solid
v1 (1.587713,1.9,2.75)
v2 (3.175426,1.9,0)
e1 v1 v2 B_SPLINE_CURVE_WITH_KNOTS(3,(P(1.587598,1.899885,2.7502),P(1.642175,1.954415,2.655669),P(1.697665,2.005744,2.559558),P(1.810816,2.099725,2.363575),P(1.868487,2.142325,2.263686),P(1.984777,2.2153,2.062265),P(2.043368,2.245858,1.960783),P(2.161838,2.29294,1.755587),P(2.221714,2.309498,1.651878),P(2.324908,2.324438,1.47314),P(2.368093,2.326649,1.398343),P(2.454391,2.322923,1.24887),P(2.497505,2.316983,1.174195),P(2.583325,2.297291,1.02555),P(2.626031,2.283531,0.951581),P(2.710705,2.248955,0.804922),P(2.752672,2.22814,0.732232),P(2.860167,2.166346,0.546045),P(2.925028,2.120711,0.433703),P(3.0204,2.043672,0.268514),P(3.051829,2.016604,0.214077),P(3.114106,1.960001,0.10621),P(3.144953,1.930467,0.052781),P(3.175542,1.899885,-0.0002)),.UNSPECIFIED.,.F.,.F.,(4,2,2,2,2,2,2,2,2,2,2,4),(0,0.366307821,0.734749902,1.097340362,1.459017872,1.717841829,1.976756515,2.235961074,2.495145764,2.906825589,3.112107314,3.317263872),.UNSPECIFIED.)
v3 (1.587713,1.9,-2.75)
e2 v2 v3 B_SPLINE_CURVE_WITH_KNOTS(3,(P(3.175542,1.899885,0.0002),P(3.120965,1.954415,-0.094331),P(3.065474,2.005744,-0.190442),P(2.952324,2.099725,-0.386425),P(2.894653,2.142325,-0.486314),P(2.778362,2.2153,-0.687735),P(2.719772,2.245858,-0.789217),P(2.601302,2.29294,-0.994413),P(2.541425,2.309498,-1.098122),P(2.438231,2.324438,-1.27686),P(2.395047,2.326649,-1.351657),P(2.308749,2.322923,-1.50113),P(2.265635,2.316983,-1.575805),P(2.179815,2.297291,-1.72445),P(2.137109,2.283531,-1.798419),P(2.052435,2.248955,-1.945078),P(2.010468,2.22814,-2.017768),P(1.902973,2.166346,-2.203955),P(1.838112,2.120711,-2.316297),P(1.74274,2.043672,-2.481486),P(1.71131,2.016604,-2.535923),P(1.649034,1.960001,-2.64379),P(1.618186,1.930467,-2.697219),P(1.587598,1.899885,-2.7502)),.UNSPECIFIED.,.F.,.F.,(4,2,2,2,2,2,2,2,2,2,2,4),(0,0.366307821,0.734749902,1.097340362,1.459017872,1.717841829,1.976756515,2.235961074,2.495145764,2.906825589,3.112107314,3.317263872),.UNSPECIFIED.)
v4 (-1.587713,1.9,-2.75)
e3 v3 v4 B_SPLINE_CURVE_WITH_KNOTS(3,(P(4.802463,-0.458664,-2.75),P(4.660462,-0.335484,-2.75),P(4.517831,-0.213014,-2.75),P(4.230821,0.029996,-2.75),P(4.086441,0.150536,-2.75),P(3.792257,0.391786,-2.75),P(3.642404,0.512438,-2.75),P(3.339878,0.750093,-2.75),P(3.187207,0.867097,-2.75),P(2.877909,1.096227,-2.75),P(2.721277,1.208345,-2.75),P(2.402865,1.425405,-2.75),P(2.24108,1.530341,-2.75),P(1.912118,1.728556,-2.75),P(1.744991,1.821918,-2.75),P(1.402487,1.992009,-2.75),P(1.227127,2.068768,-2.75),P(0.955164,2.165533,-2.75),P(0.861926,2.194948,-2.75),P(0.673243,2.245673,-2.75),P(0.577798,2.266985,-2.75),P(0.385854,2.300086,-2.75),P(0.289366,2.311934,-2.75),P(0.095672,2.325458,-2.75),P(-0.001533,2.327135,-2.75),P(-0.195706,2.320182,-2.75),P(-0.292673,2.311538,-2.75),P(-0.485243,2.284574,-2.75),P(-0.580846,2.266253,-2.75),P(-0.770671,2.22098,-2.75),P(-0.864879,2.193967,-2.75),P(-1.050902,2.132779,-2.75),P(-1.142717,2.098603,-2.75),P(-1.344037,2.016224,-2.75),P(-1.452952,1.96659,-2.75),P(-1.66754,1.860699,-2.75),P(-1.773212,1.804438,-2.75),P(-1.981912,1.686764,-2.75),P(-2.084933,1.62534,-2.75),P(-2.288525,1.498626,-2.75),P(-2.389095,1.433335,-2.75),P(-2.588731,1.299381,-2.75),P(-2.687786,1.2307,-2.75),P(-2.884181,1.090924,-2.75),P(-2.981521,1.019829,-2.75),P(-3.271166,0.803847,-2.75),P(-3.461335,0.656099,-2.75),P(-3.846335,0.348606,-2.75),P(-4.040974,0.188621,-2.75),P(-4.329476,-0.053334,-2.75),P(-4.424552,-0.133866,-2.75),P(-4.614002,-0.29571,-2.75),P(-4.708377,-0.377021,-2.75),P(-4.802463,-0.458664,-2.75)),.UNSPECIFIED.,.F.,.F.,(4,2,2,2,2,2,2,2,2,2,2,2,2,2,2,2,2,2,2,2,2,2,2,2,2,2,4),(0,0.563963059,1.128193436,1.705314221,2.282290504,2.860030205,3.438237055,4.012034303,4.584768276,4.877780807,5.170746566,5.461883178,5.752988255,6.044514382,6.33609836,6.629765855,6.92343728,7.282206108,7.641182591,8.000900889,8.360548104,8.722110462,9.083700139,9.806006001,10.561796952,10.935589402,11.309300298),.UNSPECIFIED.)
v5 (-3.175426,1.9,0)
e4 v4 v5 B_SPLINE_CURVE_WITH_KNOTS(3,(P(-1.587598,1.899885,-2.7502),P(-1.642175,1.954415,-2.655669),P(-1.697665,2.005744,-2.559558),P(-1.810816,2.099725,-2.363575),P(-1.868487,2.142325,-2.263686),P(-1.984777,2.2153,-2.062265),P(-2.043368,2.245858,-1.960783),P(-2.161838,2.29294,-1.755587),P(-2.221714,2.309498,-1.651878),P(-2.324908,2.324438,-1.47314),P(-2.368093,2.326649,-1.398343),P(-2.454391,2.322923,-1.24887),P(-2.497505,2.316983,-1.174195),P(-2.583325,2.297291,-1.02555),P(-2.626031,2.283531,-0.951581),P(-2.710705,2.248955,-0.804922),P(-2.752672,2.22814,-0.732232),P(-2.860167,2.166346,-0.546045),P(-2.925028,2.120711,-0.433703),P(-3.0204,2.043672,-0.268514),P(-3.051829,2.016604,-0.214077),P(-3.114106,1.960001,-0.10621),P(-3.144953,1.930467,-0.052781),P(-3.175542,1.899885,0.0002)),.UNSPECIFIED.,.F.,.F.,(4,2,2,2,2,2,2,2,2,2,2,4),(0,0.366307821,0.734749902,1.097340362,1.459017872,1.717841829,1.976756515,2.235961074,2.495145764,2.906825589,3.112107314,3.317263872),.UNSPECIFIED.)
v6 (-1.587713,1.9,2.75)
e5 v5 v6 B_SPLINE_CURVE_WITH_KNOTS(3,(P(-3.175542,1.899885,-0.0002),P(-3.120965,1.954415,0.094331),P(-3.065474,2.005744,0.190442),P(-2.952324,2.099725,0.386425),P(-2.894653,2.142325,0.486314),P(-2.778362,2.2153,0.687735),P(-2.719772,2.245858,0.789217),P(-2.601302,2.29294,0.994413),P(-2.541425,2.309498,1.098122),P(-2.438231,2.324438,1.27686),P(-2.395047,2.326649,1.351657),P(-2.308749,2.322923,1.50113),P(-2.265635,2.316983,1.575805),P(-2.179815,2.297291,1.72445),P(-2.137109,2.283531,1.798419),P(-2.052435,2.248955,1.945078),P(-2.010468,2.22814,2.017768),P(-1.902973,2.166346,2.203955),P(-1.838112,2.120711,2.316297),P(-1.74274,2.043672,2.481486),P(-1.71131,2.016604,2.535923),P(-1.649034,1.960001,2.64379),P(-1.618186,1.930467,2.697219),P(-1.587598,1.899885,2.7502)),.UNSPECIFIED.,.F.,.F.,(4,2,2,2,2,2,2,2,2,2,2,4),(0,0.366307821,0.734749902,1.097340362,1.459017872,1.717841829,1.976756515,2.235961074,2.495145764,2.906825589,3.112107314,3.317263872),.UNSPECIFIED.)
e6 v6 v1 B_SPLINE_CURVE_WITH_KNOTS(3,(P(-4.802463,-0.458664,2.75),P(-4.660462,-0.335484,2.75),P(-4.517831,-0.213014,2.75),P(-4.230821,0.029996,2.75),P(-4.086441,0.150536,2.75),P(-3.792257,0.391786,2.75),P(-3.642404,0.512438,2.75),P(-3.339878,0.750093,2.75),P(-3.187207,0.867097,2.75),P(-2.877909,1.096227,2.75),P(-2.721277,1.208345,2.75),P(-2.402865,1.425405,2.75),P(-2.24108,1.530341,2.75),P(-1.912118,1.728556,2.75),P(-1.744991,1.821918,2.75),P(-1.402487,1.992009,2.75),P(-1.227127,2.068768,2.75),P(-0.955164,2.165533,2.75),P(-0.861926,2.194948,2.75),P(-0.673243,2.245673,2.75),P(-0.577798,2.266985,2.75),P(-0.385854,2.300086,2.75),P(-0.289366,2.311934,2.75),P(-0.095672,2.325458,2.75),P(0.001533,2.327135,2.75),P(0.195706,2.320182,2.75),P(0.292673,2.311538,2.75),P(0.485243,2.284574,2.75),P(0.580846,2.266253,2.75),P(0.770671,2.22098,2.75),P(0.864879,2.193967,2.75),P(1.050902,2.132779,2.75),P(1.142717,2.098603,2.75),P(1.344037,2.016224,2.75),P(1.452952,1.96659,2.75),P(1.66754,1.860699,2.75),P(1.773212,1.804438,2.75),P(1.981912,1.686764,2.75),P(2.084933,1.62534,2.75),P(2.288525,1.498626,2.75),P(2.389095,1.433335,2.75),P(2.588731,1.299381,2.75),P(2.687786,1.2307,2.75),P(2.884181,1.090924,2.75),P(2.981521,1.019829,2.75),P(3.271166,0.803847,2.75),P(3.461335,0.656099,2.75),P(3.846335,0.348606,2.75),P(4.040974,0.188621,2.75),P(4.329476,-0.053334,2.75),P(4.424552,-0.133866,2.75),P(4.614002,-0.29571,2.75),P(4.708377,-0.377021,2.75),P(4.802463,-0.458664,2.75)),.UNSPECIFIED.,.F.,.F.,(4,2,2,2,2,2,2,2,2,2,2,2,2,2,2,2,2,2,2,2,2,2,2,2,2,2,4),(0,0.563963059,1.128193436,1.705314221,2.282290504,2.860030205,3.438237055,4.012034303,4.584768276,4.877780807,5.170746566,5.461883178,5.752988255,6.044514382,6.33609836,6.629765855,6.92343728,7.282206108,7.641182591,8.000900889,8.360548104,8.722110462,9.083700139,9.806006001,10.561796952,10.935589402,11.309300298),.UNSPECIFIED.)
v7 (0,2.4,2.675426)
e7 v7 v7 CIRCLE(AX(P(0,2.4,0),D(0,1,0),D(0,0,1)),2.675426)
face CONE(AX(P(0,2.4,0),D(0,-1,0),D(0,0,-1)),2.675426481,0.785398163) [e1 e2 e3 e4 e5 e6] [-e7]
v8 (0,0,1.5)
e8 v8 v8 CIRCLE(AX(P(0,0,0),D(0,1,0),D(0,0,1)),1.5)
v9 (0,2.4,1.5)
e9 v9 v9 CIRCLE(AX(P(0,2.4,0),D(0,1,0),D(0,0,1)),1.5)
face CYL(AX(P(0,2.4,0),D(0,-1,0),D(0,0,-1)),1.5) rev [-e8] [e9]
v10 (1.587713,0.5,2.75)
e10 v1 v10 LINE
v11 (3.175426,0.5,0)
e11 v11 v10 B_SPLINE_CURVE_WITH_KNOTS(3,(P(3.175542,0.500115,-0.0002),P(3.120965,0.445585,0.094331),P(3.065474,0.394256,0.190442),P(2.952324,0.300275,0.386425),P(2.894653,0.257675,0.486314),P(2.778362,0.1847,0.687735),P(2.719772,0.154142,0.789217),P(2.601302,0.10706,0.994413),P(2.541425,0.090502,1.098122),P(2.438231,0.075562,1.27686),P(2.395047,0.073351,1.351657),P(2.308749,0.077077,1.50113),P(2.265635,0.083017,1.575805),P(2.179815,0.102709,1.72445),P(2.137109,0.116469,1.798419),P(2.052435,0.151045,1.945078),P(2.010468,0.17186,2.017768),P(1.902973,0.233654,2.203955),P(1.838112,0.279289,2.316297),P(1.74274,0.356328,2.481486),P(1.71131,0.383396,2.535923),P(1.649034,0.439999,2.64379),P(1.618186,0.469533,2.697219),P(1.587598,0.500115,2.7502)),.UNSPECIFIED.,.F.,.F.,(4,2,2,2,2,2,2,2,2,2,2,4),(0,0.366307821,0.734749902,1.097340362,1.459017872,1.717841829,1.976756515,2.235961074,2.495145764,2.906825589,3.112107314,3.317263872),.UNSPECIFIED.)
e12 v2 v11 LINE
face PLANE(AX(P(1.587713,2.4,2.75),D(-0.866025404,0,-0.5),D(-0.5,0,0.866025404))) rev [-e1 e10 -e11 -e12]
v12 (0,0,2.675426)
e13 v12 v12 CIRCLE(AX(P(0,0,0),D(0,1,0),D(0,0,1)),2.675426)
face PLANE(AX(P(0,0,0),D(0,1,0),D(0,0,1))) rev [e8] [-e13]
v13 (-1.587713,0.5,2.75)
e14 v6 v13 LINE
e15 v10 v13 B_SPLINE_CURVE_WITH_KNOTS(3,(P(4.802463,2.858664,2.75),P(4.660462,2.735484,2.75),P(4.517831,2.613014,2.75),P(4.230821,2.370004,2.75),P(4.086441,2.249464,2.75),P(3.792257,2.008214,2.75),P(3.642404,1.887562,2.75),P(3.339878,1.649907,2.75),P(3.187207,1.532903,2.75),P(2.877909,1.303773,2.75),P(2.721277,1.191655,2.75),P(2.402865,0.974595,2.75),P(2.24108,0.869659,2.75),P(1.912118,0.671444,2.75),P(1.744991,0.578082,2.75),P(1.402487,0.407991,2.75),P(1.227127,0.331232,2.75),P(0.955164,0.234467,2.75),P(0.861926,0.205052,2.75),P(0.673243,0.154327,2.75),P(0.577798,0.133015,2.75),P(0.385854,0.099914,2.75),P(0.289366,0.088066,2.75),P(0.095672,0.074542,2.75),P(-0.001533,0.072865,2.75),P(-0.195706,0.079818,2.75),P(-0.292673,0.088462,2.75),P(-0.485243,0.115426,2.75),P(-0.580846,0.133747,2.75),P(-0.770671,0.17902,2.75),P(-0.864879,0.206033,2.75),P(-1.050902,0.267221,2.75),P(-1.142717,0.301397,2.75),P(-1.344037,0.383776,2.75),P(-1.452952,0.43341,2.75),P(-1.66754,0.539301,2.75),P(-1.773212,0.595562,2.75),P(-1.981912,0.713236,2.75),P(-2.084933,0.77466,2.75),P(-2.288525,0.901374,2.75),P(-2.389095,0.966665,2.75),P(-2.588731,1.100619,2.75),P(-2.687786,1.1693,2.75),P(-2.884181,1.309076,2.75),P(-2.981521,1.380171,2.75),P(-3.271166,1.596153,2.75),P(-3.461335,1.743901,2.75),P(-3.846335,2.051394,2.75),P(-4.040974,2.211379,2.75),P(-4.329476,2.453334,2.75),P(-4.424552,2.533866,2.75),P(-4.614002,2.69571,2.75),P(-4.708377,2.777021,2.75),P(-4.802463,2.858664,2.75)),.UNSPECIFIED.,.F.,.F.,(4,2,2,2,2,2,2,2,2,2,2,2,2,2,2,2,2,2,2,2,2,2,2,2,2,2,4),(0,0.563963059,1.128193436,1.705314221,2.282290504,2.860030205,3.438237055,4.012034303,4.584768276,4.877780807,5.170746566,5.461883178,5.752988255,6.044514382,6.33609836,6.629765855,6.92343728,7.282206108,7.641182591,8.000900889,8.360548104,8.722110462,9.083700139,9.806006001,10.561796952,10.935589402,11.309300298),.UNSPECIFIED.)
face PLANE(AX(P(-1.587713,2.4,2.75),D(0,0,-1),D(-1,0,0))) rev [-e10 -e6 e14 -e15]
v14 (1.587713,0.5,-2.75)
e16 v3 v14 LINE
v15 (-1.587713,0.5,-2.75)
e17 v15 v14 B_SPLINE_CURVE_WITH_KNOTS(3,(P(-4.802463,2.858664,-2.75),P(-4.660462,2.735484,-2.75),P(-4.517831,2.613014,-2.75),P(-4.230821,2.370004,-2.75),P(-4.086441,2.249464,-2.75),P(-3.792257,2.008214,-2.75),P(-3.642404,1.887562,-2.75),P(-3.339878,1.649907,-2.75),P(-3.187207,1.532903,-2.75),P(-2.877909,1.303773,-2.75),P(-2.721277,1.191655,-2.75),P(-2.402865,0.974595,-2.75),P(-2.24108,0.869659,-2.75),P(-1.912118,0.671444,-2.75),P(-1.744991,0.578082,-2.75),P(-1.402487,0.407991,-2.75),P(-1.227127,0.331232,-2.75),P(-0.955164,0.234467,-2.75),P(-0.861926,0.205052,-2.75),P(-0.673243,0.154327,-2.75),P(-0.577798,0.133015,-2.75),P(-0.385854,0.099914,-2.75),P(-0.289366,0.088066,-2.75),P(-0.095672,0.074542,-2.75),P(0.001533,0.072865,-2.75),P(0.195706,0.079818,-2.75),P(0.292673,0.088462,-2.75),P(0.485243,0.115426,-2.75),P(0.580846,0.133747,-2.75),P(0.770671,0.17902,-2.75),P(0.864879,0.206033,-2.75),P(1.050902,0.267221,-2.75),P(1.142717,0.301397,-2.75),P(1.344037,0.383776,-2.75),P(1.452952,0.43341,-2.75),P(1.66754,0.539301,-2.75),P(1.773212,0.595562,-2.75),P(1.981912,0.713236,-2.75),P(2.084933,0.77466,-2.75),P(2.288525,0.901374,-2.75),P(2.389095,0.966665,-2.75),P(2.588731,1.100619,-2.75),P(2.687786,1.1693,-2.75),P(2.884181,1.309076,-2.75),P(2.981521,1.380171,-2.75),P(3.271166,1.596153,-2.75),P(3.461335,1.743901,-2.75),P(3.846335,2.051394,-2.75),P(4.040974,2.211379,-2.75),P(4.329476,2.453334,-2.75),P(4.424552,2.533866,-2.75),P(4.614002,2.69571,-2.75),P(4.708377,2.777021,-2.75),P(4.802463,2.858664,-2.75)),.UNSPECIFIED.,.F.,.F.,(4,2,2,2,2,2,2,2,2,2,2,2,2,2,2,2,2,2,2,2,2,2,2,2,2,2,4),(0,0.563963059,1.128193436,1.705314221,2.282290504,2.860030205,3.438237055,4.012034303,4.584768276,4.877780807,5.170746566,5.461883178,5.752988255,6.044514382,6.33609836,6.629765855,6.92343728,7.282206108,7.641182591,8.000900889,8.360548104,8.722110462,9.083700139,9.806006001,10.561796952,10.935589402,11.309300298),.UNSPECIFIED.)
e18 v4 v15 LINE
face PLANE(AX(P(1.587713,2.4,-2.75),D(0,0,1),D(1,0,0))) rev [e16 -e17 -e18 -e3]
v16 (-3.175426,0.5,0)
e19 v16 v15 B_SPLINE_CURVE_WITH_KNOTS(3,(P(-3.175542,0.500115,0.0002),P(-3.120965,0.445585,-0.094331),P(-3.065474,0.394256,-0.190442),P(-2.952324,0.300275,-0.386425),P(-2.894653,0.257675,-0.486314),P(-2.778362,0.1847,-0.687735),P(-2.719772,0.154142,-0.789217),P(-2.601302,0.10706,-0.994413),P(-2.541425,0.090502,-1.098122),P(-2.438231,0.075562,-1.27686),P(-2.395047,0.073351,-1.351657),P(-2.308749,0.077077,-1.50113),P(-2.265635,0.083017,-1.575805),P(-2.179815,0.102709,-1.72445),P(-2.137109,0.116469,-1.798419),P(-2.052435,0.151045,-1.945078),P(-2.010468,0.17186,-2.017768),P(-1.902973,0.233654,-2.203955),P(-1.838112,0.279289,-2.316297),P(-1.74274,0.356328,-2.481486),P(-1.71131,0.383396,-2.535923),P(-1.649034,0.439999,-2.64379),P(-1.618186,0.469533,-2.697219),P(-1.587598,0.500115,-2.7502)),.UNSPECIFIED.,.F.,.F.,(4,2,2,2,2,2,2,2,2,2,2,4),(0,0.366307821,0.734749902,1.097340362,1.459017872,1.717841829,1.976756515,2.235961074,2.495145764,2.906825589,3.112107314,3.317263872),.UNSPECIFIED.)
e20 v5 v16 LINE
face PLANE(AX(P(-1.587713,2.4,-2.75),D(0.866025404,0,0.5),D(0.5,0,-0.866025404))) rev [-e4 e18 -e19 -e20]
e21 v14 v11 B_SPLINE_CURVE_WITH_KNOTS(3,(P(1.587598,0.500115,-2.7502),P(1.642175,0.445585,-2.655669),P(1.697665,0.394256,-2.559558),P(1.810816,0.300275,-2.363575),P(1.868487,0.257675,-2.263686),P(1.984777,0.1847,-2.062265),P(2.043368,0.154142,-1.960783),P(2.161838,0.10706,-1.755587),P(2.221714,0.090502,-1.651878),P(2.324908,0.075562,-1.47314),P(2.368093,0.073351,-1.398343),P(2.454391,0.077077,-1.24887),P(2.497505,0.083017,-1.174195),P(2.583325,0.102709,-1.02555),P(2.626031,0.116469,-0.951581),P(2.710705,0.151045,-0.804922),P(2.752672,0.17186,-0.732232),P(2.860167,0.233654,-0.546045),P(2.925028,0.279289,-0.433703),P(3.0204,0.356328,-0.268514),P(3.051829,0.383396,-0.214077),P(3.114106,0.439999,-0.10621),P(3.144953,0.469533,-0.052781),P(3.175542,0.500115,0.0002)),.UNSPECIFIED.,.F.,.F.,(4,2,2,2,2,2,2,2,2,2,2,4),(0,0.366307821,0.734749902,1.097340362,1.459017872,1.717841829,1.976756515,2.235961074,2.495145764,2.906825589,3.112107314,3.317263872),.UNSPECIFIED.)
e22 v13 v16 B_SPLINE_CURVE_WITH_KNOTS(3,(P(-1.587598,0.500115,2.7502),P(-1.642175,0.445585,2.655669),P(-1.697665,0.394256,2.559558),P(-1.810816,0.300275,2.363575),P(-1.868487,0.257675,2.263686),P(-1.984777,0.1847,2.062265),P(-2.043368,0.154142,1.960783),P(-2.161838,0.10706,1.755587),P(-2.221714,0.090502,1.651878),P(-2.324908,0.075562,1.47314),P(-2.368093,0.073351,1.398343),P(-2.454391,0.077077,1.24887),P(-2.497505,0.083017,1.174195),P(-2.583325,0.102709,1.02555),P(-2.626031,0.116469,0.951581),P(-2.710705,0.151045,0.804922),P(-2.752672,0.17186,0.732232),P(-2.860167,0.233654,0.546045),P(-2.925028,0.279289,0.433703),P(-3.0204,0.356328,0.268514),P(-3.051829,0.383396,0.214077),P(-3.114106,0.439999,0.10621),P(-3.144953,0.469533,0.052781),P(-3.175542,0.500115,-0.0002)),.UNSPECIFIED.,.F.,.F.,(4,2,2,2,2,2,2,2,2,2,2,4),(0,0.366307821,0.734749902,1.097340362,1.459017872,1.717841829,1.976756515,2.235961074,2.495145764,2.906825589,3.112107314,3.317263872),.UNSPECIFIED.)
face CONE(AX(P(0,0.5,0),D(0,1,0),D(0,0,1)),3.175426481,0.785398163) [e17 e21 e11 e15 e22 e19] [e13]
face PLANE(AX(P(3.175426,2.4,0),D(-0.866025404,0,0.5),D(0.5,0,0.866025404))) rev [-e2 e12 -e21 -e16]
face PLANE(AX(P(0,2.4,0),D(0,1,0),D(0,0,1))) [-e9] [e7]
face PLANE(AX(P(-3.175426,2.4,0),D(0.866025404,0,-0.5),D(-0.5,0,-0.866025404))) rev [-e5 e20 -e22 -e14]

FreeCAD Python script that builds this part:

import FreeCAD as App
import Part
import Sketcher

V = App.Vector
Q = App.Units.Quantity


def add_polygon(sketch, points):
    """Adds a closed chain of lines whose ends are joined by coincident constraints."""
    first, n = sketch.GeometryCount, len(points)
    for a, b in zip(points, points[1:] + points[:1]):
        sketch.addGeometry(Part.LineSegment(App.Vector(*a, 0), App.Vector(*b, 0)), False)
    for i in range(n):
        sketch.addConstraint(Sketcher.Constraint("Coincident", first + i, 2, first + (i + 1) % n, 1))

doc = App.newDocument("Part")
body = doc.addObject("PartDesign::Body", "Body")

sketch1 = body.newObject("Sketcher::SketchObject", "Sketch")
sketch1.AttachmentSupport = (doc.getObject("XZ_Plane"), [""])
sketch1.MapMode = "FlatFace"
add_polygon(sketch1, [(1.587713, -2.75), (-1.587713, -2.75), (-3.175426, 0), (-1.587713, 2.75), (1.587713, 2.75), (3.175426, 0)])
sketch1.addGeometry(Part.Circle(V(0, 0, 0), V(0, 0, 1), 1.5), False)
sketch1.addConstraint([
    Sketcher.Constraint("Horizontal", 0),
    Sketcher.Constraint("Horizontal", 3),
    Sketcher.Constraint("Coincident", 6, 3, -1, 1),
    Sketcher.Constraint("Symmetric", 0, 2, 3, 2, -1, 1),
    Sketcher.Constraint("Symmetric", 1, 2, 4, 2, -1, 1),
    Sketcher.Constraint("PointOnObject", 1, 2, -1),
    Sketcher.Constraint("Parallel", 2, 5),
    Sketcher.Constraint("Vertical", 0, 2, 2, 2),
    Sketcher.Constraint("Diameter", 6, Q("3 mm")),
    Sketcher.Constraint("Angle", 1, Q("120 deg")),
    Sketcher.Constraint("DistanceY", 0, 2, 2, 2, Q("5.5 mm")),
    Sketcher.Constraint("DistanceX", 0, 2, 0, 1, Q("3.175426 mm")),
])
pad1 = body.newObject("PartDesign::Pad", "Pad")
pad1.Profile = sketch1
pad1.Length = 2.4
pad1.Reversed = True

sketch2 = body.newObject("Sketcher::SketchObject", "Sketch001")
sketch2.AttachmentSupport = (doc.getObject("XY_Plane"), [""])
sketch2.MapMode = "FlatFace"
add_polygon(sketch2, [(3.175426, 0), (3.175426, 0.5), (2.675426, 0)])
add_polygon(sketch2, [(3.175426, 2.4), (2.675426, 2.4), (3.175426, 1.9)])
sketch2.addConstraint([
    Sketcher.Constraint("Vertical", 0),
    Sketcher.Constraint("Horizontal", 2),
    Sketcher.Constraint("Horizontal", 3),
    Sketcher.Constraint("Vertical", 5),
    Sketcher.Constraint("PointOnObject", 1, 2, -1),
    Sketcher.Constraint("Perpendicular", 1, 4),
    Sketcher.Constraint("Vertical", 1, 2, 3, 2),
    Sketcher.Constraint("Vertical", 2, 2, 4, 2),
    Sketcher.Constraint("Equal", 3, 0),
    Sketcher.Constraint("DistanceX", 2, 1, 2, 2, Q("0.5 mm")),
    Sketcher.Constraint("DistanceY", -1, 1, 3, 2, Q("2.4 mm")),
    Sketcher.Constraint("DistanceX", -1, 1, 0, 2, Q("3.175426 mm")),
])
groove = body.newObject("PartDesign::Groove", "Groove")
groove.Profile = sketch2
groove.ReferenceAxis = (sketch2, ["V_Axis"])
groove.Angle = 360

doc.recompute()
